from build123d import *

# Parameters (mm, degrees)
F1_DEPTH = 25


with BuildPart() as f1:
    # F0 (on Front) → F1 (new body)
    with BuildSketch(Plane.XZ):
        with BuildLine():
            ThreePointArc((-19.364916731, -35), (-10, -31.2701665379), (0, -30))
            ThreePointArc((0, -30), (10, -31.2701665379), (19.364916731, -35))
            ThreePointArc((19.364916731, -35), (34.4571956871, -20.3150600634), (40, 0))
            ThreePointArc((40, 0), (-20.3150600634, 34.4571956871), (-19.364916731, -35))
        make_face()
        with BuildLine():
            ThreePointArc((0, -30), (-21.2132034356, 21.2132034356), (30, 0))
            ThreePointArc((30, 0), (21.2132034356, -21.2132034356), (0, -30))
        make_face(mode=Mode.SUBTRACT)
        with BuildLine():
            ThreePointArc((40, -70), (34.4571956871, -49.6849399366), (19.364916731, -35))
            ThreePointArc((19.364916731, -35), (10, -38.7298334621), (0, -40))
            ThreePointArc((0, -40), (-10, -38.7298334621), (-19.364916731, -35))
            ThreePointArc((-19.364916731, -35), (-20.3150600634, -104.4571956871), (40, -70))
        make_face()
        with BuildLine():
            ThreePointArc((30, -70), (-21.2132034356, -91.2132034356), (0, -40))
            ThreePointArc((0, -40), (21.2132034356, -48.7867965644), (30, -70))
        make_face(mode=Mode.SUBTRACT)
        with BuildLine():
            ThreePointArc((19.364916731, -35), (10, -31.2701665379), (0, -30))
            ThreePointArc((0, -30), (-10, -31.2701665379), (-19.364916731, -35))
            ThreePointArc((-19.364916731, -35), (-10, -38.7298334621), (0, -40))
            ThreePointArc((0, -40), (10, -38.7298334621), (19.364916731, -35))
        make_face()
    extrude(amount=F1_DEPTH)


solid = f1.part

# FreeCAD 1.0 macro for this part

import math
import FreeCAD as App
import Part
import Sketcher

V = App.Vector

doc = App.newDocument("Part")
body = doc.addObject("PartDesign::Body", "Body")

sketch1 = body.newObject("Sketcher::SketchObject", "Sketch")
sketch1.AttachmentSupport = (doc.getObject("XZ_Plane"), [""])
sketch1.MapMode = "FlatFace"
sketch1.addGeometry([
    Part.ArcOfCircle(Part.Circle(V(0, 0, 0), V(0, 0, 1), 40), math.radians(0), math.radians(241.044976)),
    Part.ArcOfCircle(Part.Circle(V(0, -70, 0), V(0, 0, 1), 40), math.radians(118.955024), math.radians(360)),
    Part.ArcOfCircle(Part.Circle(V(0, -70, 0), V(0, 0, 1), 40), math.radians(0), math.radians(61.044976)),
    Part.ArcOfCircle(Part.Circle(V(0, 0, 0), V(0, 0, 1), 40), math.radians(-61.044976), math.radians(0)),
    Part.Circle(V(0, 0, 0), V(0, 0, 1), 30),
    Part.Circle(V(0, -70, 0), V(0, 0, 1), 30),
], False)
sketch1.addConstraint([
    Sketcher.Constraint("Coincident", 0, 2, 1, 1),
    Sketcher.Constraint("Tangent", 1, 2, 2, 1),
    Sketcher.Constraint("Coincident", 2, 2, 3, 1),
    Sketcher.Constraint("Tangent", 3, 2, 0, 1),
    Sketcher.Constraint("Coincident", 0, 3, -1, 1),
    Sketcher.Constraint("Coincident", 4, 3, -1, 1),
    Sketcher.Constraint("Coincident", 5, 3, 1, 3),
    Sketcher.Constraint("Equal", 0, 1),
    Sketcher.Constraint("Equal", 1, 2),
    Sketcher.Constraint("Equal", 2, 3),
    Sketcher.Constraint("Equal", 4, 5),
    Sketcher.Constraint("PointOnObject", 1, 3, -2),
    Sketcher.Constraint("PointOnObject", 3, 2, -1),
    Sketcher.Constraint("Horizontal", 5, 3, 1, 2),
    Sketcher.Constraint("Diameter", 4, 60.0),
    Sketcher.Constraint("Radius", 0, 40.0),
    Sketcher.Constraint("DistanceY", 1, 3, -1, 1, 70.0),
])
pad1 = body.newObject("PartDesign::Pad", "Pad")
pad1.Profile = sketch1
pad1.Length = 25

doc.recompute()
